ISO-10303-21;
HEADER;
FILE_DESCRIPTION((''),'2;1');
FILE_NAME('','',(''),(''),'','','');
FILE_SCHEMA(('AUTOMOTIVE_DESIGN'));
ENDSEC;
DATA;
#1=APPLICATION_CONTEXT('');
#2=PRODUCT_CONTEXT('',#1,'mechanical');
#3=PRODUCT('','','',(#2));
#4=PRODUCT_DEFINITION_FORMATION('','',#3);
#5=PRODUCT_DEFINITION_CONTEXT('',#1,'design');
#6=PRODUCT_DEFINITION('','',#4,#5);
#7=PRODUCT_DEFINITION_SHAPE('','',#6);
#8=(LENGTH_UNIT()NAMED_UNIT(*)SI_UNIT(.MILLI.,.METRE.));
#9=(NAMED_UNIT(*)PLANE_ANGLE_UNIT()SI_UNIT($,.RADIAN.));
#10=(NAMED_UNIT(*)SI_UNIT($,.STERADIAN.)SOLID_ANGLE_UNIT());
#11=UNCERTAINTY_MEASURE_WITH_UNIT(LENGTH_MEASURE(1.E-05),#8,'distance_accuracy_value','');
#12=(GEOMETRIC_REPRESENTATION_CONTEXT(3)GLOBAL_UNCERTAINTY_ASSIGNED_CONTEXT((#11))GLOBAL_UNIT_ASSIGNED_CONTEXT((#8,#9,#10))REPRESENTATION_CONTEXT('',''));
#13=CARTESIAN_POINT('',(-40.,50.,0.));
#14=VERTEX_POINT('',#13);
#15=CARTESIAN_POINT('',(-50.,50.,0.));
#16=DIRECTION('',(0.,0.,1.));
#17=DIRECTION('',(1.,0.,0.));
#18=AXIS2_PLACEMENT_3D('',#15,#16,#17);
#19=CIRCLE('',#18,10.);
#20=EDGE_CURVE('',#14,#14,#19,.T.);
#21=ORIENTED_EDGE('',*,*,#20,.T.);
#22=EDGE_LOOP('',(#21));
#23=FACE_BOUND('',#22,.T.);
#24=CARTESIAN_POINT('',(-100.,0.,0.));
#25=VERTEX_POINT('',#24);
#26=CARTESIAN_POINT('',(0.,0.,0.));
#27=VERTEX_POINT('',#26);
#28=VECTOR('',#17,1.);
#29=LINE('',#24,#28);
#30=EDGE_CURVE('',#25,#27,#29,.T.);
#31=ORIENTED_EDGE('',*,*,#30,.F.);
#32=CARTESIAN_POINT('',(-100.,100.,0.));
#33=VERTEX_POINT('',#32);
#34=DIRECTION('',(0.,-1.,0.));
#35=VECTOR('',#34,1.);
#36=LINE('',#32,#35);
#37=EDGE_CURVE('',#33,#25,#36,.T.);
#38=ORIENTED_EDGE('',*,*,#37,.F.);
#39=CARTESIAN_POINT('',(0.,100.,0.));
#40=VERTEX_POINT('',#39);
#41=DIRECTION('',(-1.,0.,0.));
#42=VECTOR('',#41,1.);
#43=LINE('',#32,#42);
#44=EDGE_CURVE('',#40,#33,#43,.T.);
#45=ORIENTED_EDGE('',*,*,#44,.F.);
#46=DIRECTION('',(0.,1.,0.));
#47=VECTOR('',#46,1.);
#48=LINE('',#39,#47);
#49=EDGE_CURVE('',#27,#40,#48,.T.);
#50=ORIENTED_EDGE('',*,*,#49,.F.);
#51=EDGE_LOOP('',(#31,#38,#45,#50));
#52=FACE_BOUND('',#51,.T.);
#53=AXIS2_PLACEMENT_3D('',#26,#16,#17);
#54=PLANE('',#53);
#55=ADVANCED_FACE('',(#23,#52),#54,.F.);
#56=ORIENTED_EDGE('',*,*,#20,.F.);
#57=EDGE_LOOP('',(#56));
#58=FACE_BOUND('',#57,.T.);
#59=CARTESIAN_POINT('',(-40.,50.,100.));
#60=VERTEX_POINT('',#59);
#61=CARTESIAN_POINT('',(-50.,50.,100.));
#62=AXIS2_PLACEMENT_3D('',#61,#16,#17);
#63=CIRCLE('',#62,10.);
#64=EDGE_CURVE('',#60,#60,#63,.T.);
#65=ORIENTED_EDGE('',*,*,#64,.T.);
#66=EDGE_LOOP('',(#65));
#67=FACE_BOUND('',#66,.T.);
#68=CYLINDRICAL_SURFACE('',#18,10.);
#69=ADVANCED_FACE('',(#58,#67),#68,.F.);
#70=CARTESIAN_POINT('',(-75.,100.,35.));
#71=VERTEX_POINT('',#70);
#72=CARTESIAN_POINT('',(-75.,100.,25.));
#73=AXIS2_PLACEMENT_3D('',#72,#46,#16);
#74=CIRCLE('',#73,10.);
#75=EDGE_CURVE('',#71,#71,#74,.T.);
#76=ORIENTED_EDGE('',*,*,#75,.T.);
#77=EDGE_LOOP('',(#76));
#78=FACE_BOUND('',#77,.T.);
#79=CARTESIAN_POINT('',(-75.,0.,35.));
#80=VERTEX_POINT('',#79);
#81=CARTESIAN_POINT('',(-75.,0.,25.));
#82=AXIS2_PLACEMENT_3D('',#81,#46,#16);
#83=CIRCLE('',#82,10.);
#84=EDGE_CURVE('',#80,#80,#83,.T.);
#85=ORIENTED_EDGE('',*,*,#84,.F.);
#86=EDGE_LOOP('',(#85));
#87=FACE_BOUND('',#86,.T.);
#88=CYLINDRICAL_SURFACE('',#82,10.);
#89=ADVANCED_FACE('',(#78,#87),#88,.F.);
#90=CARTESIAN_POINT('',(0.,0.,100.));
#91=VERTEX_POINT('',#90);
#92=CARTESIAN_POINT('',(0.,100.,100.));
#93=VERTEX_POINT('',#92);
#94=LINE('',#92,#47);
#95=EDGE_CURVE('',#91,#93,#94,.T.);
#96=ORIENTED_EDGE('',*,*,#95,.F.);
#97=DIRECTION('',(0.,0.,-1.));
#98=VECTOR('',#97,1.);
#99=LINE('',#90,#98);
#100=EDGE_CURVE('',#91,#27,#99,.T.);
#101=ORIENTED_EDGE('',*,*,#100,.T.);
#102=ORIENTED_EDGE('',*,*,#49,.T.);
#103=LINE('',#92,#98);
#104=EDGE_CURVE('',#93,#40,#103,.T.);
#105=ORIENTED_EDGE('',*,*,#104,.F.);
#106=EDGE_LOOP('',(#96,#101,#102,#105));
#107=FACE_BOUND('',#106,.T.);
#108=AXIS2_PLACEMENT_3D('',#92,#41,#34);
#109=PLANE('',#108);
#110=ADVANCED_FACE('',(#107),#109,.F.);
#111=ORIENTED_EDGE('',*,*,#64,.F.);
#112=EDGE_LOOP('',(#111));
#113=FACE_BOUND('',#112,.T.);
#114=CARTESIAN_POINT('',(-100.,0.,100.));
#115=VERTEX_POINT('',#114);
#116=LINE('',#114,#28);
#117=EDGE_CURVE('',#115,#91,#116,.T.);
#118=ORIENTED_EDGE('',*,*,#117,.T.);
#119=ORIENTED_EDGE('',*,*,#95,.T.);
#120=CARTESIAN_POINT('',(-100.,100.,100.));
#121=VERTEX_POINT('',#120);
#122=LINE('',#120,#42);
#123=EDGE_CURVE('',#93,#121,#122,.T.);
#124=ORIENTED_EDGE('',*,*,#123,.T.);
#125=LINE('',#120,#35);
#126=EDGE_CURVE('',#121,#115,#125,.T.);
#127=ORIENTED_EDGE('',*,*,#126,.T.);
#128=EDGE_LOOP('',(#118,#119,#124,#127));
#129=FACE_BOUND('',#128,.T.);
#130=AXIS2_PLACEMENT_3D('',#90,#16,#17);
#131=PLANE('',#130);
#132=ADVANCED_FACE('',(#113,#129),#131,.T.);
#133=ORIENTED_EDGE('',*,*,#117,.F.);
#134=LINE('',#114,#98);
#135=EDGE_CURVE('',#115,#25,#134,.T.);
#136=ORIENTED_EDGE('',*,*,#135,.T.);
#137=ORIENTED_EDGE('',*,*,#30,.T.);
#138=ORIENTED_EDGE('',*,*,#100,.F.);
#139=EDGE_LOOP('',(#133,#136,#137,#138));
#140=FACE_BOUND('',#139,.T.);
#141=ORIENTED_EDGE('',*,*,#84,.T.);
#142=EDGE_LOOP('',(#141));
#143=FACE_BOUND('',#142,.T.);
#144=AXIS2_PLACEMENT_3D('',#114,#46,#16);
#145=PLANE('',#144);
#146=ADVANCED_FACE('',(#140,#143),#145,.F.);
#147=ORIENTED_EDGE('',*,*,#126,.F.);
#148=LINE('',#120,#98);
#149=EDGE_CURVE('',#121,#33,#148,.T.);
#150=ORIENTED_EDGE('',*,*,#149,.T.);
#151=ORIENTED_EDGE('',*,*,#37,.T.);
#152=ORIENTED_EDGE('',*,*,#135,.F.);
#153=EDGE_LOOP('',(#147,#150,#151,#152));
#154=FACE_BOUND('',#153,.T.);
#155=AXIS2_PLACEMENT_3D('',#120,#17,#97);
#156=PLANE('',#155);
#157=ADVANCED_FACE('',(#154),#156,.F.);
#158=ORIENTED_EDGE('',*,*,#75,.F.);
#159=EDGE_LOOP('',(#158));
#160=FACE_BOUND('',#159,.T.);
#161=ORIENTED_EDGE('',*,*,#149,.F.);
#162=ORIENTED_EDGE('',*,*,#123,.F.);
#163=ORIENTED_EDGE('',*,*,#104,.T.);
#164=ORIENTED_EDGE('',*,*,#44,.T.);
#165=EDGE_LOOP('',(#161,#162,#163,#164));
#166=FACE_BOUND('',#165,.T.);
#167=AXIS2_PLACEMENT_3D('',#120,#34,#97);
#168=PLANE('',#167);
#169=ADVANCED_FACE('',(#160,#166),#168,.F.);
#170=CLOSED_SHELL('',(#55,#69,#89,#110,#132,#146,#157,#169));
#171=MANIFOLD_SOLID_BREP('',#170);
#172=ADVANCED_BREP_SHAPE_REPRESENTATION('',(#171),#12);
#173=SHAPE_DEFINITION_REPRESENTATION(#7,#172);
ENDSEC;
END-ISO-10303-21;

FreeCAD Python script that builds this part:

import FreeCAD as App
import Part
import Sketcher
from FreeCAD import Vector

doc = App.newDocument("Part")
body = doc.addObject("PartDesign::Body", "Body")

# Sketch on XY plane
sketch1 = body.newObject("Sketcher::SketchObject", "Sketch")
sketch1.AttachmentSupport = (doc.getObject("XY_Plane"), [""])
sketch1.MapMode = "FlatFace"
sketch1.addGeometry([
    Part.LineSegment(Vector(-100, 100, 0), Vector(-100, 0, 0)),
    Part.LineSegment(Vector(-100, 0, 0), Vector(0, 0, 0)),
    Part.LineSegment(Vector(0, 0, 0), Vector(0, 100, 0)),
    Part.LineSegment(Vector(0, 100, 0), Vector(-100, 100, 0)),
], False)
sketch1.addConstraint([
    Sketcher.Constraint("Coincident", 0, 2, 1, 1),
    Sketcher.Constraint("Coincident", 1, 2, 2, 1),
    Sketcher.Constraint("Coincident", 2, 2, 3, 1),
    Sketcher.Constraint("Coincident", 3, 2, 0, 1),
    Sketcher.Constraint("Vertical", 0),
    Sketcher.Constraint("Horizontal", 1),
    Sketcher.Constraint("Vertical", 2),
    Sketcher.Constraint("Horizontal", 3),
    Sketcher.Constraint("Coincident", 1, 2, -1, 1),
    Sketcher.Constraint("Equal", 3, 0),
    Sketcher.Constraint("DistanceX", 1, 1, 1, 2, 100.0),
])
pad1 = body.newObject("PartDesign::Pad", "Pad")
pad1.Profile = sketch1
pad1.Length = 100

# Sketch on XY plane
sketch2 = body.newObject("Sketcher::SketchObject", "Sketch001")
sketch2.AttachmentSupport = (doc.getObject("XY_Plane"), [""])
sketch2.MapMode = "FlatFace"
sketch2.AttachmentOffset = App.Placement(Vector(0, 0, 100), App.Rotation())
sketch2.addGeometry(Part.Circle(Vector(-50, 50, 0), Vector(0, 0, 1), 10), False)
sketch2.addConstraint([
    Sketcher.Constraint("Diameter", 0, 20.0),
    Sketcher.Constraint("DistanceX", 0, 3, -1, 1, 50.0),
    Sketcher.Constraint("DistanceY", -1, 1, 0, 3, 50.0),
])
pocket1 = body.newObject("PartDesign::Pocket", "Pocket")
pocket1.Profile = sketch2
pocket1.Type = "ThroughAll"

# Sketch on XZ plane
sketch3 = body.newObject("Sketcher::SketchObject", "Sketch002")
sketch3.AttachmentSupport = (doc.getObject("XZ_Plane"), [""])
sketch3.MapMode = "FlatFace"
sketch3.AttachmentOffset = App.Placement(Vector(0, 0, -100), App.Rotation())
sketch3.addGeometry(Part.Circle(Vector(-75, 25, 0), Vector(0, 0, 1), 10), False)
sketch3.addConstraint([
    Sketcher.Constraint("Diameter", 0, 20.0),
    Sketcher.Constraint("DistanceX", 0, 3, -1, 1, 75.0),
    Sketcher.Constraint("DistanceY", -1, 1, 0, 3, 25.0),
])
pocket2 = body.newObject("PartDesign::Pocket", "Pocket001")
pocket2.Profile = sketch3
pocket2.Type = "ThroughAll"
pocket2.Reversed = True

doc.recompute()
